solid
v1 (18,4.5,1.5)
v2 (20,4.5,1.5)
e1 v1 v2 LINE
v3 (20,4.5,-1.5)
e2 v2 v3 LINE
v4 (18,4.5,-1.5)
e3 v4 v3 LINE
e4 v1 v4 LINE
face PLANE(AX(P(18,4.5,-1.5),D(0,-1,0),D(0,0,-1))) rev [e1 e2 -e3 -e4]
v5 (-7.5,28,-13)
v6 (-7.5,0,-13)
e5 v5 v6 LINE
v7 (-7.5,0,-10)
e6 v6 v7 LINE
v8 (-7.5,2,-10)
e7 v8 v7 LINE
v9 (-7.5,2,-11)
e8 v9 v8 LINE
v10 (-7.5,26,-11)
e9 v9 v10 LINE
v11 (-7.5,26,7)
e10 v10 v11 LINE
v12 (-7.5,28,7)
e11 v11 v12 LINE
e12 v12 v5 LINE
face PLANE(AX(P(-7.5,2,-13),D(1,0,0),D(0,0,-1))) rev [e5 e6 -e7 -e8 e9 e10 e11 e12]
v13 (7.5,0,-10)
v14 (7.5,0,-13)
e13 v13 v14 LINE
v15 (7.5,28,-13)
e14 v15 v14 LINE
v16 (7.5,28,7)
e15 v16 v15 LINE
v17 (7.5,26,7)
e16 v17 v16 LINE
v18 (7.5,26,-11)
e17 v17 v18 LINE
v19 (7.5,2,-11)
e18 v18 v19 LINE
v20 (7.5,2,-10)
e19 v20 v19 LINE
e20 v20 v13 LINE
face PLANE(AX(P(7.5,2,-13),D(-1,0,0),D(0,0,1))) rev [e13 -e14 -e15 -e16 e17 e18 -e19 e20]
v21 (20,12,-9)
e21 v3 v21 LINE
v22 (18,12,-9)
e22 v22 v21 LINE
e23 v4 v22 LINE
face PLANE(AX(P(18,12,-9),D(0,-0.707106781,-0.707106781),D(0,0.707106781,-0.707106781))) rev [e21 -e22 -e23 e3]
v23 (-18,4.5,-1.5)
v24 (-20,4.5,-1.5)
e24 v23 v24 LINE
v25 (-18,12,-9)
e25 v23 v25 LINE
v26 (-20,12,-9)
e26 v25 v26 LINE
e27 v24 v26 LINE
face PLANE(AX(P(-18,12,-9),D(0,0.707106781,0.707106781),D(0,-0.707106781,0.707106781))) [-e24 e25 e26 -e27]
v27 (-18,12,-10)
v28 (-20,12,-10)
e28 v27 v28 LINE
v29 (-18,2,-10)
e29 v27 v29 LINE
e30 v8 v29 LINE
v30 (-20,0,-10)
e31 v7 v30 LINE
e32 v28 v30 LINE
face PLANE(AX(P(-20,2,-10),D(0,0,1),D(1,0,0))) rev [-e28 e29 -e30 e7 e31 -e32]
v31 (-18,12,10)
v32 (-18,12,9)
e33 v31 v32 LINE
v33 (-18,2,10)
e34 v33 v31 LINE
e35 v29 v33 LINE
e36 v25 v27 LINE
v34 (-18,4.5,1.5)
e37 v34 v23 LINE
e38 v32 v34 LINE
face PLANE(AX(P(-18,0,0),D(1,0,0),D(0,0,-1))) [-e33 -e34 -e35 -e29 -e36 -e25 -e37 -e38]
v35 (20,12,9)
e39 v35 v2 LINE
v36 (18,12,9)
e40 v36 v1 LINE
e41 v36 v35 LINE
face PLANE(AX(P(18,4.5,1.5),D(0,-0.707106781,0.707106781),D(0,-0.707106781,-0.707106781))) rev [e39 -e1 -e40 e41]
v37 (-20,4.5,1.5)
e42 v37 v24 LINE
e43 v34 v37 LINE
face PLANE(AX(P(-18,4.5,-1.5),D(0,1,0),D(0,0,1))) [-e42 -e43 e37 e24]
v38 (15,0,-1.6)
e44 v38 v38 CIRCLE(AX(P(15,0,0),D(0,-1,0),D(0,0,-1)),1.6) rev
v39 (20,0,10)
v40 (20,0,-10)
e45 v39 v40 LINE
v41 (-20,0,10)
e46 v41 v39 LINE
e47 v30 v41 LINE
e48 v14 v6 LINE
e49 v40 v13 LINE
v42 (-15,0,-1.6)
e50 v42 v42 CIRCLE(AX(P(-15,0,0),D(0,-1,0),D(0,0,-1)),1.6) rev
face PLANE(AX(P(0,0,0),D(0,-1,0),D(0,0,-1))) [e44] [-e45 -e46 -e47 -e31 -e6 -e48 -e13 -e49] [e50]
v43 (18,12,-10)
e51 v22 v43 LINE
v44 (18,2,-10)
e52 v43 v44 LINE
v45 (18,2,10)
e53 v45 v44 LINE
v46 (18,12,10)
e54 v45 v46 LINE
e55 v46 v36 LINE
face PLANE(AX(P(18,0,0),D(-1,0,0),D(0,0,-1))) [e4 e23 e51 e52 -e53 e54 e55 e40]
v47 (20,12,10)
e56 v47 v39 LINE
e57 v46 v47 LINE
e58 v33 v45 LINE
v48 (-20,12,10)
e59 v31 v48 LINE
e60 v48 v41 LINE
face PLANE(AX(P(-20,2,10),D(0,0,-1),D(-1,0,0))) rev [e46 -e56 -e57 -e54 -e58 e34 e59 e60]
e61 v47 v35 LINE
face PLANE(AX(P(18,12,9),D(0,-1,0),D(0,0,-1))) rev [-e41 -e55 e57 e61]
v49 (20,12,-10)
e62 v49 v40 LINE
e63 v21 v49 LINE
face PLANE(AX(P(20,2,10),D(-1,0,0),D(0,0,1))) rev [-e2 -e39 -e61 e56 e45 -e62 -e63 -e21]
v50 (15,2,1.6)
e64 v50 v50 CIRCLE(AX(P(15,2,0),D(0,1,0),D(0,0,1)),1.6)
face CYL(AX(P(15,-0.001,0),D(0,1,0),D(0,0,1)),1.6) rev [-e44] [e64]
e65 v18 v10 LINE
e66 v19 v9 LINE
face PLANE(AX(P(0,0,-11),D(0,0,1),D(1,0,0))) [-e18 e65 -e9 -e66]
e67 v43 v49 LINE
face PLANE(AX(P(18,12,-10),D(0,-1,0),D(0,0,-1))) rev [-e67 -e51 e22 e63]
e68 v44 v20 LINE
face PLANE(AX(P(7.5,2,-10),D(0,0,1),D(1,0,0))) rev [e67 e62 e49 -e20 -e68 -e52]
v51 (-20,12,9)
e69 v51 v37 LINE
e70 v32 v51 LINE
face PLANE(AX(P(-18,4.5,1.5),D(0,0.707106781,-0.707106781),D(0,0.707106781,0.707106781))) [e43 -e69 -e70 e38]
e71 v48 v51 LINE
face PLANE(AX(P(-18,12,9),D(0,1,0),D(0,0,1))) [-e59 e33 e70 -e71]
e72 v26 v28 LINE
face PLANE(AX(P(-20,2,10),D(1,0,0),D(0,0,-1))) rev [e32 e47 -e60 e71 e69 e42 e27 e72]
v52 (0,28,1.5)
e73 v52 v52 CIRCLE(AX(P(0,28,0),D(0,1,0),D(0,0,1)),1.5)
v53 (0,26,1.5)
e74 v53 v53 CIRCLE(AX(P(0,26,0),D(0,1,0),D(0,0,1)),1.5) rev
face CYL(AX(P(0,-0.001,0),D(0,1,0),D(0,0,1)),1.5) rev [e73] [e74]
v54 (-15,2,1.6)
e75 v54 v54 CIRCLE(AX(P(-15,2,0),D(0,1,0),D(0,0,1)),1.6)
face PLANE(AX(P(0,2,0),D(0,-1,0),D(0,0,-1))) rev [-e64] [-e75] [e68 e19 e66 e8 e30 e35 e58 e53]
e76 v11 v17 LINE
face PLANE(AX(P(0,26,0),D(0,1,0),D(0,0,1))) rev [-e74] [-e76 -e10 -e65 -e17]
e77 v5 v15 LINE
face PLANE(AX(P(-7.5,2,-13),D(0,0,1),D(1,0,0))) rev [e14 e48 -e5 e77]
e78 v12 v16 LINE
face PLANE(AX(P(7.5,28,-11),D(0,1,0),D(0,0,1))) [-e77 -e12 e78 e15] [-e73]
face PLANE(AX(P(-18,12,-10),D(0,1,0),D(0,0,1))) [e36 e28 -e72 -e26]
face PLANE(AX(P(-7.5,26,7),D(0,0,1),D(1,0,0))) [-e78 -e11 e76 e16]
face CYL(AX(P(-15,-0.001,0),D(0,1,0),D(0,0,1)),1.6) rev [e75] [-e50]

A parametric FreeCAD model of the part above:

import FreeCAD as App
import Part
import Sketcher

V = App.Vector

doc = App.newDocument("Part")
params = doc.addObject("Spreadsheet::Sheet", "Params")
for row, (alias, value) in enumerate([
    ("sketch1_width", "15 mm"),
    ("sketch1_width2", "40 mm"),
    ("sketch1_height", "3 mm"),
    ("sketch1_height2", "20 mm"),
    ("pad1_length", "2 mm"),
    ("sketch2_width", "15 mm"),
    ("sketch2_height", "28 mm"),
    ("pad2_length", "2 mm"),
    ("sketch3_width", "12 mm"),
    ("sketch3_height", "3 mm"),
    ("sketch3_height2", "1 mm"),
    ("sketch3_height3", "20 mm"),
    ("pad3_length", "2 mm"),
    ("sketch4_width", "15 mm"),
    ("sketch4_height", "20 mm"),
    ("pad4_length", "2 mm"),
    ("sketch5_diameter", "3.2 mm"),
    ("sketch6_diameter", "3.2 mm"),
    ("sketch7_diameter", "3 mm"),
], start=1):
    params.set(f"A{row}", alias)
    params.set(f"B{row}", "=" + value)
    params.setAlias(f"B{row}", alias)

body = doc.addObject("PartDesign::Body", "Body")

# Sketch on XZ plane
sketch1 = doc.addObject("Sketcher::SketchObject", "Sketch")
body.addObject(sketch1)
sketch1.AttachmentSupport = (doc.XZ_Plane, [""])
sketch1.MapMode = "FlatFace"
sketch1.addGeometry([
    Part.LineSegment(V(20, -10, 0), V(7.5, -10, 0)),  # 0
    Part.LineSegment(V(7.5, -10, 0), V(7.5, -13, 0)),  # 1
    Part.LineSegment(V(7.5, -13, 0), V(-7.5, -13, 0)),  # 2
    Part.LineSegment(V(-7.5, -13, 0), V(-7.5, -10, 0)),  # 3
    Part.LineSegment(V(-7.5, -10, 0), V(-20, -10, 0)),  # 4
    Part.LineSegment(V(-20, -10, 0), V(-20, 10, 0)),  # 5
    Part.LineSegment(V(-20, 10, 0), V(20, 10, 0)),  # 6
    Part.LineSegment(V(20, 10, 0), V(20, -10, 0)),  # 7
], False)
sketch1.addConstraint([
    Sketcher.Constraint("Coincident", 0, 2, 1, 1),
    Sketcher.Constraint("Coincident", 1, 2, 2, 1),
    Sketcher.Constraint("Coincident", 2, 2, 3, 1),
    Sketcher.Constraint("Coincident", 3, 2, 4, 1),
    Sketcher.Constraint("Coincident", 4, 2, 5, 1),
    Sketcher.Constraint("Coincident", 5, 2, 6, 1),
    Sketcher.Constraint("Coincident", 6, 2, 7, 1),
    Sketcher.Constraint("Coincident", 7, 2, 0, 1),
    Sketcher.Constraint("Horizontal", 0),
    Sketcher.Constraint("Vertical", 1),
    Sketcher.Constraint("Horizontal", 2),
    Sketcher.Constraint("Vertical", 3),
    Sketcher.Constraint("Horizontal", 4),
    Sketcher.Constraint("Vertical", 5),
    Sketcher.Constraint("Horizontal", 6),
    Sketcher.Constraint("Vertical", 7),
    Sketcher.Constraint("Symmetric", 4, 2, 6, 2, -1, 1),
    Sketcher.Constraint("Symmetric", 0, 2, 3, 2, -2),
    Sketcher.Constraint("DistanceX", 2, 2, 2, 1, 15.0),
    Sketcher.Constraint("DistanceX", 6, 1, 6, 2, 40.0),
    Sketcher.Constraint("DistanceY", 1, 2, 1, 1, 3.0),
    Sketcher.Constraint("DistanceY", 5, 1, 5, 2, 20.0),
])
sketch1.setExpression("Constraints[18]", "Params.sketch1_width")
sketch1.setExpression("Constraints[19]", "Params.sketch1_width2")
sketch1.setExpression("Constraints[20]", "Params.sketch1_height")
sketch1.setExpression("Constraints[21]", "Params.sketch1_height2")
pad1 = doc.addObject("PartDesign::Pad", "Pad")
body.addObject(pad1)
pad1.Profile = sketch1
pad1.setExpression("Length", "Params.pad1_length")
pad1.Reversed = True

# Sketch on XY plane
sketch2 = doc.addObject("Sketcher::SketchObject", "Sketch001")
body.addObject(sketch2)
sketch2.AttachmentSupport = (doc.XY_Plane, [""])
sketch2.MapMode = "FlatFace"
sketch2.AttachmentOffset = App.Placement(V(0, 0, -13), App.Rotation())
sketch2.addGeometry([
    Part.LineSegment(V(7.5, 28, 0), V(7.5, 0, 0)),
    Part.LineSegment(V(7.5, 0, 0), V(-7.5, 0, 0)),
    Part.LineSegment(V(-7.5, 0, 0), V(-7.5, 28, 0)),
    Part.LineSegment(V(-7.5, 28, 0), V(7.5, 28, 0)),
], False)
sketch2.addConstraint([
    Sketcher.Constraint("Coincident", 0, 2, 1, 1),
    Sketcher.Constraint("Coincident", 1, 2, 2, 1),
    Sketcher.Constraint("Coincident", 2, 2, 3, 1),
    Sketcher.Constraint("Coincident", 3, 2, 0, 1),
    Sketcher.Constraint("Vertical", 0),
    Sketcher.Constraint("Horizontal", 1),
    Sketcher.Constraint("Vertical", 2),
    Sketcher.Constraint("Horizontal", 3),
    Sketcher.Constraint("Symmetric", 0, 2, 1, 2, -1, 1),
    Sketcher.Constraint("DistanceX", 1, 2, 1, 1, 15.0),
    Sketcher.Constraint("DistanceY", 0, 2, 0, 1, 28.0),
])
sketch2.setExpression("Constraints[9]", "Params.sketch2_width")
sketch2.setExpression("Constraints[10]", "Params.sketch2_height")
pad2 = doc.addObject("PartDesign::Pad", "Pad001")
body.addObject(pad2)
pad2.Profile = sketch2
pad2.setExpression("Length", "Params.pad2_length")

# Sketch on YZ plane
sketch3 = doc.addObject("Sketcher::SketchObject", "Sketch002")
body.addObject(sketch3)
sketch3.AttachmentSupport = (doc.YZ_Plane, [""])
sketch3.MapMode = "FlatFace"
sketch3.AttachmentOffset = App.Placement(V(0, 0, -20), App.Rotation())
sketch3.addGeometry([
    Part.LineSegment(V(12, 9, 0), V(4.5, 1.5, 0)),  # 0
    Part.LineSegment(V(4.5, 1.5, 0), V(4.5, -1.5, 0)),  # 1
    Part.LineSegment(V(4.5, -1.5, 0), V(12, -9, 0)),  # 2
    Part.LineSegment(V(12, -9, 0), V(12, -10, 0)),  # 3
    Part.LineSegment(V(12, -10, 0), V(0, -10, 0)),  # 4
    Part.LineSegment(V(0, -10, 0), V(0, 10, 0)),  # 5
    Part.LineSegment(V(0, 10, 0), V(12, 10, 0)),  # 6
    Part.LineSegment(V(12, 10, 0), V(12, 9, 0)),  # 7
], False)
sketch3.addConstraint([
    Sketcher.Constraint("Coincident", 0, 2, 1, 1),
    Sketcher.Constraint("Coincident", 1, 2, 2, 1),
    Sketcher.Constraint("Coincident", 2, 2, 3, 1),
    Sketcher.Constraint("Coincident", 3, 2, 4, 1),
    Sketcher.Constraint("Coincident", 4, 2, 5, 1),
    Sketcher.Constraint("Coincident", 5, 2, 6, 1),
    Sketcher.Constraint("Coincident", 6, 2, 7, 1),
    Sketcher.Constraint("Coincident", 7, 2, 0, 1),
    Sketcher.Constraint("Vertical", 1),
    Sketcher.Constraint("Vertical", 3),
    Sketcher.Constraint("Horizontal", 4),
    Sketcher.Constraint("Vertical", 5),
    Sketcher.Constraint("Horizontal", 6),
    Sketcher.Constraint("Vertical", 7),
    Sketcher.Constraint("Symmetric", 4, 2, 5, 2, -1, 1),
    Sketcher.Constraint("Symmetric", 2, 2, 7, 2, -1),
    Sketcher.Constraint("Perpendicular", 0, 2),
    Sketcher.Constraint("Equal", 0, 2),
    Sketcher.Constraint("DistanceX", 4, 2, 4, 1, 12.0),
    Sketcher.Constraint("DistanceY", 1, 2, 1, 1, 3.0),
    Sketcher.Constraint("DistanceY", 3, 2, 3, 1, 1.0),
    Sketcher.Constraint("DistanceY", 5, 1, 5, 2, 20.0),
])
sketch3.setExpression("Constraints[18]", "Params.sketch3_width")
sketch3.setExpression("Constraints[19]", "Params.sketch3_height")
sketch3.setExpression("Constraints[20]", "Params.sketch3_height2")
sketch3.setExpression("Constraints[21]", "Params.sketch3_height3")
pad3 = doc.addObject("PartDesign::Pad", "Pad002")
body.addObject(pad3)
pad3.Profile = sketch3
pad3.setExpression("Length", "Params.pad3_length")
doc.recompute()

mirrored = doc.addObject("PartDesign::Mirrored", "Mirrored")
body.addObject(mirrored)
mirrored.Originals = [pad3]
mirrored.MirrorPlane = (doc.YZ_Plane, [""])
body.Tip = mirrored

# Sketch on XZ plane
sketch4 = doc.addObject("Sketcher::SketchObject", "Sketch003")
body.addObject(sketch4)
sketch4.AttachmentSupport = (doc.XZ_Plane, [""])
sketch4.MapMode = "FlatFace"
sketch4.AttachmentOffset = App.Placement(V(0, 0, -28), App.Rotation())
sketch4.addGeometry([
    Part.LineSegment(V(-7.5, -13, 0), V(-7.5, 7, 0)),
    Part.LineSegment(V(-7.5, 7, 0), V(7.5, 7, 0)),
    Part.LineSegment(V(7.5, 7, 0), V(7.5, -13, 0)),
    Part.LineSegment(V(7.5, -13, 0), V(-7.5, -13, 0)),
], False)
sketch4.addConstraint([
    Sketcher.Constraint("Coincident", 0, 2, 1, 1),
    Sketcher.Constraint("Coincident", 1, 2, 2, 1),
    Sketcher.Constraint("Coincident", 2, 2, 3, 1),
    Sketcher.Constraint("Coincident", 3, 2, 0, 1),
    Sketcher.Constraint("Vertical", 0),
    Sketcher.Constraint("Horizontal", 1),
    Sketcher.Constraint("Vertical", 2),
    Sketcher.Constraint("Horizontal", 3),
    Sketcher.Constraint("DistanceX", 1, 1, 1, 2, 15.0),
    Sketcher.Constraint("DistanceY", 0, 1, 0, 2, 20.0),
    Sketcher.Constraint("DistanceY", -1, 1, 0, 2, 7.0),
    Sketcher.Constraint("DistanceX", 0, 2, -1, 1, 7.5),
])
sketch4.setExpression("Constraints[8]", "Params.sketch4_width")
sketch4.setExpression("Constraints[9]", "Params.sketch4_height")
pad4 = doc.addObject("PartDesign::Pad", "Pad003")
body.addObject(pad4)
pad4.Profile = sketch4
pad4.setExpression("Length", "Params.pad4_length")

# Sketch on XZ plane
sketch5 = doc.addObject("Sketcher::SketchObject", "Sketch004")
body.addObject(sketch5)
sketch5.AttachmentSupport = (doc.XZ_Plane, [""])
sketch5.MapMode = "FlatFace"
sketch5.AttachmentOffset = App.Placement(V(0, 0, -2), App.Rotation())
sketch5.addGeometry(Part.Circle(V(-15, 0, 0), V(0, 0, 1), 1.6), False)
sketch5.addConstraint([
    Sketcher.Constraint("PointOnObject", 0, 3, -1),
    Sketcher.Constraint("Diameter", 0, 3.2),
    Sketcher.Constraint("DistanceX", 0, 3, -1, 1, 15.0),
])
sketch5.setExpression("Constraints[1]", "Params.sketch5_diameter")
pocket1 = doc.addObject("PartDesign::Pocket", "Pocket")
body.addObject(pocket1)
pocket1.Profile = sketch5
pocket1.Type = "UpToFirst"
pocket1.Reversed = True

# Sketch on XZ plane
sketch6 = doc.addObject("Sketcher::SketchObject", "Sketch005")
body.addObject(sketch6)
sketch6.AttachmentSupport = (doc.XZ_Plane, [""])
sketch6.MapMode = "FlatFace"
sketch6.AttachmentOffset = App.Placement(V(0, 0, -2), App.Rotation())
sketch6.addGeometry(Part.Circle(V(15, 0, 0), V(0, 0, 1), 1.6), False)
sketch6.addConstraint([
    Sketcher.Constraint("PointOnObject", 0, 3, -1),
    Sketcher.Constraint("Diameter", 0, 3.2),
    Sketcher.Constraint("DistanceX", -1, 1, 0, 3, 15.0),
])
sketch6.setExpression("Constraints[1]", "Params.sketch6_diameter")
pocket2 = doc.addObject("PartDesign::Pocket", "Pocket001")
body.addObject(pocket2)
pocket2.Profile = sketch6
pocket2.Type = "UpToFirst"
pocket2.Reversed = True

# Sketch on XZ plane
sketch7 = doc.addObject("Sketcher::SketchObject", "Sketch006")
body.addObject(sketch7)
sketch7.AttachmentSupport = (doc.XZ_Plane, [""])
sketch7.MapMode = "FlatFace"
sketch7.AttachmentOffset = App.Placement(V(0, 0, -28), App.Rotation())
sketch7.addGeometry(Part.Circle(V(0, 0, 0), V(0, 0, 1), 1.5), False)
sketch7.addConstraint([
    Sketcher.Constraint("Coincident", 0, 3, -1, 1),
    Sketcher.Constraint("Diameter", 0, 3.0),
])
sketch7.setExpression("Constraints[1]", "Params.sketch7_diameter")
pocket3 = doc.addObject("PartDesign::Pocket", "Pocket002")
body.addObject(pocket3)
pocket3.Profile = sketch7
pocket3.Type = "UpToFirst"
pocket3.Reversed = True

doc.recompute()
